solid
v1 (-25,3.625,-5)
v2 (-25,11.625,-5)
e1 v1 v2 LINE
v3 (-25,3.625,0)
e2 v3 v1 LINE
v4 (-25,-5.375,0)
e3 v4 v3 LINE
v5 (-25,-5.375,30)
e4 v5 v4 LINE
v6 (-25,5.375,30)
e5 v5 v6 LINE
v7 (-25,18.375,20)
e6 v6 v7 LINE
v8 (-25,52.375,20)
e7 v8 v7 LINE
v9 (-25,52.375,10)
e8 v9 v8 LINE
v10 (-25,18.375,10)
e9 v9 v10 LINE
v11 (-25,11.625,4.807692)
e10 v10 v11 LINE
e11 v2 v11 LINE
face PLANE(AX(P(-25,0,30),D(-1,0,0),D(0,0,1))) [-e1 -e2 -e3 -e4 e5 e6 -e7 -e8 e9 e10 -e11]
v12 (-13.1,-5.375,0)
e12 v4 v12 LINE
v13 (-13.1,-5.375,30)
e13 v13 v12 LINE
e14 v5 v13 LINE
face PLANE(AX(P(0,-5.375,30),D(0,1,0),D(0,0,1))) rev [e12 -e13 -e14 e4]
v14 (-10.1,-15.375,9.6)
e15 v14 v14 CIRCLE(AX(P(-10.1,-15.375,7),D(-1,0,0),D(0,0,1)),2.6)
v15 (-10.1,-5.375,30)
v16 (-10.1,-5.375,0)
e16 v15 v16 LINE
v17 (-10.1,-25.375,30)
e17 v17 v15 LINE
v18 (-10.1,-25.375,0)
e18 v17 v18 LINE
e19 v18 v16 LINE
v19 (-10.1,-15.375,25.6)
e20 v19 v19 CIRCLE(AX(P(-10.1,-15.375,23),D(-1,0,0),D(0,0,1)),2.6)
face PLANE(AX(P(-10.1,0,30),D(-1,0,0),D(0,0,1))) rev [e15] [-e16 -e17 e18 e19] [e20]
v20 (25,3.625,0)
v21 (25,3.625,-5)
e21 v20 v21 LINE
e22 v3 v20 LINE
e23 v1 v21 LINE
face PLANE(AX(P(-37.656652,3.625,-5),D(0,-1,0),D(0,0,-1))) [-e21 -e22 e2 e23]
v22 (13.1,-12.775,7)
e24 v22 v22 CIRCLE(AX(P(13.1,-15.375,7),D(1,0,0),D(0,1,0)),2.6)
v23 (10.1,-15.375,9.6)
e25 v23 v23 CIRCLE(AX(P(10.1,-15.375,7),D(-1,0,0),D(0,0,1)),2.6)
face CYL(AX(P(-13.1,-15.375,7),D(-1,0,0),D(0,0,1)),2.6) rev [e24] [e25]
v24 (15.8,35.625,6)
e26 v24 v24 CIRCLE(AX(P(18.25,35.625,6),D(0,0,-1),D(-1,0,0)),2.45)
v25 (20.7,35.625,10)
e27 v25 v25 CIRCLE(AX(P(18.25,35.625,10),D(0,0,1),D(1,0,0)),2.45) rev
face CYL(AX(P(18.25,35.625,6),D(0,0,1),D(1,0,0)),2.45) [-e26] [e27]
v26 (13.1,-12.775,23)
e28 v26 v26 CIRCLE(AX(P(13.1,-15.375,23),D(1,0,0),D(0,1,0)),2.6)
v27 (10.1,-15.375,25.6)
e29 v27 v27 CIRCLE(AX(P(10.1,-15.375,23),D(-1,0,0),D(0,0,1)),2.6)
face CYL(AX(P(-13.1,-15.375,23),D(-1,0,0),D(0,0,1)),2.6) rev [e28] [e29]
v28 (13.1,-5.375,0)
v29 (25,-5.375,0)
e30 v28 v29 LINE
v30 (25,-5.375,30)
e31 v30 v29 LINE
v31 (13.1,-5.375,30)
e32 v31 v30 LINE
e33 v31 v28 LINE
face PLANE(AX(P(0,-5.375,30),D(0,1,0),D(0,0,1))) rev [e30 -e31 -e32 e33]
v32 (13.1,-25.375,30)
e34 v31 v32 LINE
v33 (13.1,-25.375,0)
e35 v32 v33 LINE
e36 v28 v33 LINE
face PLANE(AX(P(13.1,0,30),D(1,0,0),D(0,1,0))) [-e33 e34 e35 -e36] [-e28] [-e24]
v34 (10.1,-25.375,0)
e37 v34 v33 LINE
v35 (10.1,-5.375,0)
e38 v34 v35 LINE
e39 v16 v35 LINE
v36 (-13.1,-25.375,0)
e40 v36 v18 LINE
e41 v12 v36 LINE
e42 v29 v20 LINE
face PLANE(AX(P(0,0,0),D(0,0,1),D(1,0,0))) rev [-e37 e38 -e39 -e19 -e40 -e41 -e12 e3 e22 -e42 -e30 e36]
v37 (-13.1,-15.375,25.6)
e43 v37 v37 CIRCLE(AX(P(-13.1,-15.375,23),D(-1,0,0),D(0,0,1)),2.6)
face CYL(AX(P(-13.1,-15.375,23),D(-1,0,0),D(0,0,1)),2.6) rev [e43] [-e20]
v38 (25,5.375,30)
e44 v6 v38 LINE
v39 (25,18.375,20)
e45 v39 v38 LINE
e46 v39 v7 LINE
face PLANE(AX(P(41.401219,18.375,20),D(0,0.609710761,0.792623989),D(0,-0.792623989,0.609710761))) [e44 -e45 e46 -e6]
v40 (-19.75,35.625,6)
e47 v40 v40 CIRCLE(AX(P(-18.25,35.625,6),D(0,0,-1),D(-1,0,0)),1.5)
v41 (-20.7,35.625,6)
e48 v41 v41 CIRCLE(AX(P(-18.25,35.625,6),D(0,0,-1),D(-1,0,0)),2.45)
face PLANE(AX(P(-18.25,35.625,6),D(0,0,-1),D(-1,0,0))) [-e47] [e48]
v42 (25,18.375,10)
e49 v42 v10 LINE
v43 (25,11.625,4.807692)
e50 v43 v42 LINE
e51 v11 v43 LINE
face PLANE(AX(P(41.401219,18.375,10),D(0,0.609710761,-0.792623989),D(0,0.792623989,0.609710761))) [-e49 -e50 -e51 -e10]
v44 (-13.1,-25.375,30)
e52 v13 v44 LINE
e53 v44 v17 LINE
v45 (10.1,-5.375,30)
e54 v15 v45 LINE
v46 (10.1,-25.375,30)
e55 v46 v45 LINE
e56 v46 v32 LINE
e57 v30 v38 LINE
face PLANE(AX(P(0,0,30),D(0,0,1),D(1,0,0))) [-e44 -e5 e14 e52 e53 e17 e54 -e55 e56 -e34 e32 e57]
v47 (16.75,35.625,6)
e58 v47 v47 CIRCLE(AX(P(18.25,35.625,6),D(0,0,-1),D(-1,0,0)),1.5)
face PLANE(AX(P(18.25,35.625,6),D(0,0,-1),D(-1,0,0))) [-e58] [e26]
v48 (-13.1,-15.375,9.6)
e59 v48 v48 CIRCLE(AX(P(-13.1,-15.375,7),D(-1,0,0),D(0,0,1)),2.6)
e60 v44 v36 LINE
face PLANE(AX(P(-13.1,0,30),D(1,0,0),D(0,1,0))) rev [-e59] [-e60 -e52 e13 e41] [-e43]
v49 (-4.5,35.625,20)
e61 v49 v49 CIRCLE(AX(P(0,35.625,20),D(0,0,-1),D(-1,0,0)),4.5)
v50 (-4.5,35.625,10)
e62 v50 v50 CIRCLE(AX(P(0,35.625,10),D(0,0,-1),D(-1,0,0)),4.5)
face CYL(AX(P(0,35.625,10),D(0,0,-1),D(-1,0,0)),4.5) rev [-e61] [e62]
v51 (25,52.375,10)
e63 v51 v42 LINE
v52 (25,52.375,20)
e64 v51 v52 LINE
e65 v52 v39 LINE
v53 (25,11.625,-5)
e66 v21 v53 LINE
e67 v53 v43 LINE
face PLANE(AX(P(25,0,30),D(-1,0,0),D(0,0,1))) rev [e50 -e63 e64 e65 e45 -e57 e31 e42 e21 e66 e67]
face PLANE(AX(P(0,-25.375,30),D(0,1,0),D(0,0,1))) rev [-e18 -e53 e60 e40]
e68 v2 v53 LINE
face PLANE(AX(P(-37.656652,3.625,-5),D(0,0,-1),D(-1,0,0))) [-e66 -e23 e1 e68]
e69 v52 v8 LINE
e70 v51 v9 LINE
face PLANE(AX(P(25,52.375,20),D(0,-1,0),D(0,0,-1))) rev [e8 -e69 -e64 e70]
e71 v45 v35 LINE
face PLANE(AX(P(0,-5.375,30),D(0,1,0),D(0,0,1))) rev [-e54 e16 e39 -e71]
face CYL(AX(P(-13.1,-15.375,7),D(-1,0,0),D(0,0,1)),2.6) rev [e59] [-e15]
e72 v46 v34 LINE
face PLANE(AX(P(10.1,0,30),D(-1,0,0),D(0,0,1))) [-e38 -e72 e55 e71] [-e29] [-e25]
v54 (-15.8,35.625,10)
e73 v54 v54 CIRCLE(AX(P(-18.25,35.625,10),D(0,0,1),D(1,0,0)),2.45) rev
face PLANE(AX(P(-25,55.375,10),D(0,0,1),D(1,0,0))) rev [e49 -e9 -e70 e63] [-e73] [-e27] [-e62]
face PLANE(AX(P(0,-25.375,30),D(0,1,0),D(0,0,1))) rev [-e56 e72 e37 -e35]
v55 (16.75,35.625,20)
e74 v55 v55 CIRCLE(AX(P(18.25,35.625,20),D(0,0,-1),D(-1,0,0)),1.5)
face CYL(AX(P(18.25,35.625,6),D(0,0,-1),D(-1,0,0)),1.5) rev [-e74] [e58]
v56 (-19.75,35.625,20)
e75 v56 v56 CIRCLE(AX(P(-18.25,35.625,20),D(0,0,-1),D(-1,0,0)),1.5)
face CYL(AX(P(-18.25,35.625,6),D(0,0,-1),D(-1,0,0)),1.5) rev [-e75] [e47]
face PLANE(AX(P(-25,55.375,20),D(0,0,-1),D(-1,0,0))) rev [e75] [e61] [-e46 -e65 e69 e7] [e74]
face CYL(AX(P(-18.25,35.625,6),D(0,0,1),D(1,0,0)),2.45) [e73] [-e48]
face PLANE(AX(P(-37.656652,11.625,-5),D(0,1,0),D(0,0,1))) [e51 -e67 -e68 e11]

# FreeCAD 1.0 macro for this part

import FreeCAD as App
import Part
import Sketcher

V = App.Vector
Q = App.Units.Quantity

doc = App.newDocument("Part")
params = doc.addObject("Spreadsheet::Sheet", "Params")
for row, (alias, value) in enumerate([
    ("sketch1_width", "50 mm"),
    ("sketch1_width2", "3 mm"),
    ("sketch1_height", "20 mm"),
    ("sketch1_width3", "11.9 mm"),
    ("sketch1_height2", "10.75 mm"),
    ("pad1_length", "30 mm"),
    ("sketch2_width", "50 mm"),
    ("sketch2_height", "10 mm"),
    ("pad2_length", "50 mm"),
    ("sketch3_diameter", "5.2 mm"),
    ("hole_diameter", "5.2 mm"),
    ("sketch4_diameter", "9 mm"),
    ("hole2_diameter", "9 mm"),
    ("sketch5_diameter", "4.9 mm"),
    ("pad3_length", "4 mm"),
    ("sketch6_diameter", "3 mm"),
    ("hole3_diameter", "3 mm"),
    ("sketch7_width", "13 mm"),
    ("sketch7_height", "10 mm"),
    ("pad4_length", "50 mm"),
    ("sketch8_width", "3 mm"),
    ("sketch8_height", "10 mm"),
    ("sketch9_width", "8 mm"),
    ("pad5_length", "50 mm"),
], start=1):
    params.set(f"A{row}", alias)
    params.set(f"B{row}", "=" + value)
    params.setAlias(f"B{row}", alias)

body = doc.addObject("PartDesign::Body", "Body")

# Sketch on XY plane
sketch1 = body.newObject("Sketcher::SketchObject", "Sketch")
sketch1.AttachmentSupport = (doc.getObject("XY_Plane"), [""])
sketch1.MapMode = "FlatFace"
sketch1.addGeometry(Part.LineSegment(V(13.1, -25.375, 0), V(13.1, -5.375, 0)), False)
sketch1.addGeometry(Part.LineSegment(V(13.1, -5.375, 0), V(25, -5.375, 0)), False)
sketch1.addGeometry(Part.LineSegment(V(25, -5.375, 0), V(25, 5.375, 0)), False)
sketch1.addGeometry(Part.LineSegment(V(25, 5.375, 0), V(-25, 5.375, 0)), False)
sketch1.addGeometry(Part.LineSegment(V(-25, 5.375, 0), V(-25, -5.375, 0)), False)
sketch1.addGeometry(Part.LineSegment(V(-25, -5.375, 0), V(-13.1, -5.375, 0)), False)
sketch1.addGeometry(Part.LineSegment(V(-13.1, -5.375, 0), V(-13.1, -25.375, 0)), False)
sketch1.addGeometry(Part.LineSegment(V(-13.1, -25.375, 0), V(-10.1, -25.375, 0)), False)
sketch1.addGeometry(Part.LineSegment(V(-10.1, -25.375, 0), V(-10.1, -5.375, 0)), False)
sketch1.addGeometry(Part.LineSegment(V(-10.1, -5.375, 0), V(10.1, -5.375, 0)), False)
sketch1.addGeometry(Part.LineSegment(V(10.1, -5.375, 0), V(10.1, -25.375, 0)), False)
sketch1.addGeometry(Part.LineSegment(V(10.1, -25.375, 0), V(13.1, -25.375, 0)), False)
sketch1.addConstraint(Sketcher.Constraint("Coincident", 0, 2, 1, 1))
sketch1.addConstraint(Sketcher.Constraint("Coincident", 1, 2, 2, 1))
sketch1.addConstraint(Sketcher.Constraint("Coincident", 2, 2, 3, 1))
sketch1.addConstraint(Sketcher.Constraint("Coincident", 3, 2, 4, 1))
sketch1.addConstraint(Sketcher.Constraint("Coincident", 4, 2, 5, 1))
sketch1.addConstraint(Sketcher.Constraint("Coincident", 5, 2, 6, 1))
sketch1.addConstraint(Sketcher.Constraint("Coincident", 6, 2, 7, 1))
sketch1.addConstraint(Sketcher.Constraint("Coincident", 7, 2, 8, 1))
sketch1.addConstraint(Sketcher.Constraint("Coincident", 8, 2, 9, 1))
sketch1.addConstraint(Sketcher.Constraint("Coincident", 9, 2, 10, 1))
sketch1.addConstraint(Sketcher.Constraint("Coincident", 10, 2, 11, 1))
sketch1.addConstraint(Sketcher.Constraint("Coincident", 11, 2, 0, 1))
sketch1.addConstraint(Sketcher.Constraint("Vertical", 0))
sketch1.addConstraint(Sketcher.Constraint("Horizontal", 1))
sketch1.addConstraint(Sketcher.Constraint("Vertical", 2))
sketch1.addConstraint(Sketcher.Constraint("Horizontal", 3))
sketch1.addConstraint(Sketcher.Constraint("Vertical", 4))
sketch1.addConstraint(Sketcher.Constraint("Horizontal", 5))
sketch1.addConstraint(Sketcher.Constraint("Vertical", 6))
sketch1.addConstraint(Sketcher.Constraint("Horizontal", 7))
sketch1.addConstraint(Sketcher.Constraint("Vertical", 8))
sketch1.addConstraint(Sketcher.Constraint("Horizontal", 9))
sketch1.addConstraint(Sketcher.Constraint("Vertical", 10))
sketch1.addConstraint(Sketcher.Constraint("Horizontal", 11))
sketch1.addConstraint(Sketcher.Constraint("Symmetric", 1, 2, 3, 2, -1, 1))
sketch1.addConstraint(Sketcher.Constraint("Symmetric", 0, 2, 5, 2, -2))
sketch1.addConstraint(Sketcher.Constraint("Symmetric", 7, 2, 10, 2, -2))
sketch1.addConstraint(Sketcher.Constraint("Horizontal", 5, 2, 8, 2))
sketch1.addConstraint(Sketcher.Constraint("DistanceX", 3, 2, 3, 1, Q("50 mm")))
sketch1.addConstraint(Sketcher.Constraint("DistanceX", 7, 1, 7, 2, Q("3 mm")))
sketch1.addConstraint(Sketcher.Constraint("DistanceY", 0, 1, 0, 2, Q("20 mm")))
sketch1.addConstraint(Sketcher.Constraint("DistanceX", 1, 1, 1, 2, Q("11.9 mm")))
sketch1.addConstraint(Sketcher.Constraint("DistanceY", 2, 1, 2, 2, Q("10.75 mm")))
sketch1.setExpression("Constraints[28]", "Params.sketch1_width")
sketch1.setExpression("Constraints[29]", "Params.sketch1_width2")
sketch1.setExpression("Constraints[30]", "Params.sketch1_height")
sketch1.setExpression("Constraints[31]", "Params.sketch1_width3")
sketch1.setExpression("Constraints[32]", "Params.sketch1_height2")
pad1 = body.newObject("PartDesign::Pad", "Pad")
pad1.Profile = sketch1
pad1.setExpression("Length", "Params.pad1_length")

# Sketch on XZ plane
sketch2 = body.newObject("Sketcher::SketchObject", "Sketch001")
sketch2.AttachmentSupport = (doc.getObject("XZ_Plane"), [""])
sketch2.MapMode = "FlatFace"
sketch2.AttachmentOffset = App.Placement(V(0, 0, -5.375), App.Rotation())
sketch2.addGeometry(Part.LineSegment(V(-25, 10, 0), V(-25, 20, 0)), False)
sketch2.addGeometry(Part.LineSegment(V(-25, 20, 0), V(25, 20, 0)), False)
sketch2.addGeometry(Part.LineSegment(V(25, 20, 0), V(25, 10, 0)), False)
sketch2.addGeometry(Part.LineSegment(V(25, 10, 0), V(-25, 10, 0)), False)
sketch2.addConstraint(Sketcher.Constraint("Coincident", 0, 2, 1, 1))
sketch2.addConstraint(Sketcher.Constraint("Coincident", 1, 2, 2, 1))
sketch2.addConstraint(Sketcher.Constraint("Coincident", 2, 2, 3, 1))
sketch2.addConstraint(Sketcher.Constraint("Coincident", 3, 2, 0, 1))
sketch2.addConstraint(Sketcher.Constraint("Vertical", 0))
sketch2.addConstraint(Sketcher.Constraint("Horizontal", 1))
sketch2.addConstraint(Sketcher.Constraint("Vertical", 2))
sketch2.addConstraint(Sketcher.Constraint("Horizontal", 3))
sketch2.addConstraint(Sketcher.Constraint("DistanceX", 1, 1, 1, 2, Q("50 mm")))
sketch2.addConstraint(Sketcher.Constraint("DistanceY", 0, 1, 0, 2, Q("10 mm")))
sketch2.addConstraint(Sketcher.Constraint("DistanceX", 0, 2, -1, 1, Q("25 mm")))
sketch2.addConstraint(Sketcher.Constraint("DistanceY", -1, 1, 0, 2, Q("20 mm")))
sketch2.setExpression("Constraints[8]", "Params.sketch2_width")
sketch2.setExpression("Constraints[9]", "Params.sketch2_height")
pad2 = body.newObject("PartDesign::Pad", "Pad001")
pad2.Profile = sketch2
pad2.setExpression("Length", "Params.pad2_length")
pad2.Reversed = True

# Sketch on YZ plane
sketch3 = body.newObject("Sketcher::SketchObject", "Sketch002")
sketch3.AttachmentSupport = (doc.getObject("YZ_Plane"), [""])
sketch3.MapMode = "FlatFace"
sketch3.AttachmentOffset = App.Placement(V(0, 0, -13.1), App.Rotation())
sketch3.addGeometry(Part.Circle(V(-15.375, 7, 0), V(0, 0, 1), 2.6), False)
sketch3.addGeometry(Part.Circle(V(-15.375, 23, 0), V(0, 0, 1), 2.6), False)
sketch3.addConstraint(Sketcher.Constraint("Equal", 0, 1))
sketch3.addConstraint(Sketcher.Constraint("Vertical", 0, 3, 1, 3))
sketch3.addConstraint(Sketcher.Constraint("Diameter", 0, Q("5.2 mm")))
sketch3.addConstraint(Sketcher.Constraint("DistanceY", -1, 1, 0, 3, Q("7 mm")))
sketch3.addConstraint(Sketcher.Constraint("DistanceY", -1, 1, 1, 3, Q("23 mm")))
sketch3.addConstraint(Sketcher.Constraint("DistanceX", 0, 3, -1, 1, Q("15.375 mm")))
sketch3.setExpression("Constraints[2]", "Params.sketch3_diameter")
doc.recompute()
hole = body.newObject("PartDesign::Hole", "Hole")
hole.Profile = sketch3
hole.ThreadType = "None"
hole.setExpression("Diameter", "Params.hole_diameter")
hole.DepthType = "ThroughAll"
hole.Reversed = True

# Sketch on XY plane
sketch4 = body.newObject("Sketcher::SketchObject", "Sketch003")
sketch4.AttachmentSupport = (doc.getObject("XY_Plane"), [""])
sketch4.MapMode = "FlatFace"
sketch4.AttachmentOffset = App.Placement(V(0, 0, 10), App.Rotation())
sketch4.addGeometry(Part.Circle(V(0, 35.625, 0), V(0, 0, 1), 4.5), False)
sketch4.addConstraint(Sketcher.Constraint("PointOnObject", 0, 3, -2))
sketch4.addConstraint(Sketcher.Constraint("Diameter", 0, Q("9 mm")))
sketch4.addConstraint(Sketcher.Constraint("DistanceY", -1, 1, 0, 3, Q("35.625 mm")))
sketch4.setExpression("Constraints[1]", "Params.sketch4_diameter")
doc.recompute()
hole2 = body.newObject("PartDesign::Hole", "Hole001")
hole2.Profile = sketch4
hole2.ThreadType = "None"
hole2.setExpression("Diameter", "Params.hole2_diameter")
hole2.DepthType = "ThroughAll"
hole2.Reversed = True

# Sketch on XY plane
sketch5 = body.newObject("Sketcher::SketchObject", "Sketch004")
sketch5.AttachmentSupport = (doc.getObject("XY_Plane"), [""])
sketch5.MapMode = "FlatFace"
sketch5.AttachmentOffset = App.Placement(V(0, 0, 10), App.Rotation())
sketch5.addGeometry(Part.Circle(V(-18.25, 35.625, 0), V(0, 0, 1), 2.45), False)
sketch5.addGeometry(Part.Circle(V(18.25, 35.625, 0), V(0, 0, 1), 2.45), False)
sketch5.addConstraint(Sketcher.Constraint("Equal", 0, 1))
sketch5.addConstraint(Sketcher.Constraint("Symmetric", 0, 3, 1, 3, -2))
sketch5.addConstraint(Sketcher.Constraint("Diameter", 0, Q("4.9 mm")))
sketch5.addConstraint(Sketcher.Constraint("DistanceX", 0, 3, 1, 3, Q("36.5 mm")))
sketch5.addConstraint(Sketcher.Constraint("DistanceY", -1, 1, 0, 3, Q("35.625 mm")))
sketch5.setExpression("Constraints[2]", "Params.sketch5_diameter")
pad3 = body.newObject("PartDesign::Pad", "Pad002")
pad3.Profile = sketch5
pad3.setExpression("Length", "Params.pad3_length")
pad3.Reversed = True

# Sketch on XY plane
sketch6 = body.newObject("Sketcher::SketchObject", "Sketch005")
sketch6.AttachmentSupport = (doc.getObject("XY_Plane"), [""])
sketch6.MapMode = "FlatFace"
sketch6.AttachmentOffset = App.Placement(V(0, 0, 6), App.Rotation())
sketch6.addGeometry(Part.Circle(V(-18.25, 35.625, 0), V(0, 0, 1), 1.5), False)
sketch6.addGeometry(Part.Circle(V(18.25, 35.625, 0), V(0, 0, 1), 1.5), False)
sketch6.addConstraint(Sketcher.Constraint("Equal", 0, 1))
sketch6.addConstraint(Sketcher.Constraint("Symmetric", 0, 3, 1, 3, -2))
sketch6.addConstraint(Sketcher.Constraint("Diameter", 0, Q("3 mm")))
sketch6.addConstraint(Sketcher.Constraint("DistanceX", 0, 3, 1, 3, Q("36.5 mm")))
sketch6.addConstraint(Sketcher.Constraint("DistanceY", -1, 1, 0, 3, Q("35.625 mm")))
sketch6.setExpression("Constraints[2]", "Params.sketch6_diameter")
doc.recompute()
hole3 = body.newObject("PartDesign::Hole", "Hole002")
hole3.Profile = sketch6
hole3.ThreadType = "None"
hole3.setExpression("Diameter", "Params.hole3_diameter")
hole3.DepthType = "ThroughAll"
hole3.Reversed = True

# Sketch on YZ plane
sketch7 = body.newObject("Sketcher::SketchObject", "Sketch006")
sketch7.AttachmentSupport = (doc.getObject("YZ_Plane"), [""])
sketch7.MapMode = "FlatFace"
sketch7.AttachmentOffset = App.Placement(V(0, 0, -25), App.Rotation())
sketch7.addGeometry(Part.LineSegment(V(5.375, 30, 0), V(18.375, 20, 0)), False)
sketch7.addGeometry(Part.LineSegment(V(18.375, 20, 0), V(5.375, 20, 0)), False)
sketch7.addGeometry(Part.LineSegment(V(5.375, 20, 0), V(5.375, 30, 0)), False)
sketch7.addGeometry(Part.LineSegment(V(18.375, 10, 0), V(5.375, 0, 0)), False)
sketch7.addGeometry(Part.LineSegment(V(5.375, 0, 0), V(5.375, 10, 0)), False)
sketch7.addGeometry(Part.LineSegment(V(5.375, 10, 0), V(18.375, 10, 0)), False)
sketch7.addConstraint(Sketcher.Constraint("Coincident", 0, 2, 1, 1))
sketch7.addConstraint(Sketcher.Constraint("Coincident", 1, 2, 2, 1))
sketch7.addConstraint(Sketcher.Constraint("Coincident", 2, 2, 0, 1))
sketch7.addConstraint(Sketcher.Constraint("Coincident", 3, 2, 4, 1))
sketch7.addConstraint(Sketcher.Constraint("Coincident", 4, 2, 5, 1))
sketch7.addConstraint(Sketcher.Constraint("Coincident", 5, 2, 3, 1))
sketch7.addConstraint(Sketcher.Constraint("Horizontal", 1))
sketch7.addConstraint(Sketcher.Constraint("Vertical", 2))
sketch7.addConstraint(Sketcher.Constraint("Vertical", 4))
sketch7.addConstraint(Sketcher.Constraint("Horizontal", 5))
sketch7.addConstraint(Sketcher.Constraint("PointOnObject", 3, 2, -1))
sketch7.addConstraint(Sketcher.Constraint("Vertical", 2, 2, 3, 2))
sketch7.addConstraint(Sketcher.Constraint("Vertical", 0, 2, 5, 2))
sketch7.addConstraint(Sketcher.Constraint("Equal", 2, 4))
sketch7.addConstraint(Sketcher.Constraint("DistanceX", 1, 2, 1, 1, Q("13 mm")))
sketch7.addConstraint(Sketcher.Constraint("DistanceY", 2, 1, 2, 2, Q("10 mm")))
sketch7.addConstraint(Sketcher.Constraint("DistanceY", -1, 1, 0, 2, Q("20 mm")))
sketch7.addConstraint(Sketcher.Constraint("DistanceX", -1, 1, 0, 2, Q("18.375 mm")))
sketch7.setExpression("Constraints[14]", "Params.sketch7_width")
sketch7.setExpression("Constraints[15]", "Params.sketch7_height")
pad4 = body.newObject("PartDesign::Pad", "Pad003")
pad4.Profile = sketch7
pad4.setExpression("Length", "Params.pad4_length")

# Sketch on YZ plane
sketch8 = body.newObject("Sketcher::SketchObject", "Sketch007")
sketch8.AttachmentSupport = (doc.getObject("YZ_Plane"), [""])
sketch8.MapMode = "FlatFace"
sketch8.AttachmentOffset = App.Placement(V(0, 0, -25), App.Rotation())
sketch8.addGeometry(Part.LineSegment(V(55.375, 10, 0), V(52.375, 10, 0)), False)
sketch8.addGeometry(Part.LineSegment(V(52.375, 10, 0), V(52.375, 20, 0)), False)
sketch8.addGeometry(Part.LineSegment(V(52.375, 20, 0), V(55.375, 20, 0)), False)
sketch8.addGeometry(Part.LineSegment(V(55.375, 20, 0), V(55.375, 10, 0)), False)
sketch8.addConstraint(Sketcher.Constraint("Coincident", 0, 2, 1, 1))
sketch8.addConstraint(Sketcher.Constraint("Coincident", 1, 2, 2, 1))
sketch8.addConstraint(Sketcher.Constraint("Coincident", 2, 2, 3, 1))
sketch8.addConstraint(Sketcher.Constraint("Coincident", 3, 2, 0, 1))
sketch8.addConstraint(Sketcher.Constraint("Horizontal", 0))
sketch8.addConstraint(Sketcher.Constraint("Vertical", 1))
sketch8.addConstraint(Sketcher.Constraint("Horizontal", 2))
sketch8.addConstraint(Sketcher.Constraint("Vertical", 3))
sketch8.addConstraint(Sketcher.Constraint("DistanceX", 0, 2, 0, 1, Q("3 mm")))
sketch8.addConstraint(Sketcher.Constraint("DistanceY", 1, 1, 1, 2, Q("10 mm")))
sketch8.addConstraint(Sketcher.Constraint("DistanceY", -1, 1, 0, 2, Q("10 mm")))
sketch8.addConstraint(Sketcher.Constraint("DistanceX", -1, 1, 0, 2, Q("52.375 mm")))
sketch8.setExpression("Constraints[8]", "Params.sketch8_width")
sketch8.setExpression("Constraints[9]", "Params.sketch8_height")
pocket1 = body.newObject("PartDesign::Pocket", "Pocket")
pocket1.Profile = sketch8
pocket1.Type = "ThroughAll"
pocket1.Reversed = True

# Sketch on YZ plane
sketch9 = body.newObject("Sketcher::SketchObject", "Sketch008")
sketch9.AttachmentSupport = (doc.getObject("YZ_Plane"), [""])
sketch9.MapMode = "FlatFace"
sketch9.AttachmentOffset = App.Placement(V(0, 0, 25), App.Rotation())
sketch9.addGeometry(Part.LineSegment(V(11.625, 4.807692, 0), V(3.625, 4.807692, 0)), False)
sketch9.addGeometry(Part.LineSegment(V(3.625, 4.807692, 0), V(3.625, -5, 0)), False)
sketch9.addGeometry(Part.LineSegment(V(3.625, -5, 0), V(11.625, -5, 0)), False)
sketch9.addGeometry(Part.LineSegment(V(11.625, -5, 0), V(11.625, 4.807692, 0)), False)
sketch9.addConstraint(Sketcher.Constraint("Coincident", 0, 2, 1, 1))
sketch9.addConstraint(Sketcher.Constraint("Coincident", 1, 2, 2, 1))
sketch9.addConstraint(Sketcher.Constraint("Coincident", 2, 2, 3, 1))
sketch9.addConstraint(Sketcher.Constraint("Coincident", 3, 2, 0, 1))
sketch9.addConstraint(Sketcher.Constraint("Horizontal", 0))
sketch9.addConstraint(Sketcher.Constraint("Vertical", 1))
sketch9.addConstraint(Sketcher.Constraint("Horizontal", 2))
sketch9.addConstraint(Sketcher.Constraint("Vertical", 3))
sketch9.addConstraint(Sketcher.Constraint("DistanceX", 0, 2, 0, 1, Q("8 mm")))
sketch9.addConstraint(Sketcher.Constraint("DistanceY", 1, 2, -1, 1, Q("5 mm")))
sketch9.addConstraint(Sketcher.Constraint("DistanceX", -1, 1, 0, 2, Q("3.625 mm")))
sketch9.addConstraint(Sketcher.Constraint("DistanceY", 1, 2, 1, 1, Q("9.807692 mm")))
sketch9.setExpression("Constraints[8]", "Params.sketch9_width")
pad5 = body.newObject("PartDesign::Pad", "Pad004")
pad5.Profile = sketch9
pad5.setExpression("Length", "Params.pad5_length")
pad5.Reversed = True

doc.recompute()
